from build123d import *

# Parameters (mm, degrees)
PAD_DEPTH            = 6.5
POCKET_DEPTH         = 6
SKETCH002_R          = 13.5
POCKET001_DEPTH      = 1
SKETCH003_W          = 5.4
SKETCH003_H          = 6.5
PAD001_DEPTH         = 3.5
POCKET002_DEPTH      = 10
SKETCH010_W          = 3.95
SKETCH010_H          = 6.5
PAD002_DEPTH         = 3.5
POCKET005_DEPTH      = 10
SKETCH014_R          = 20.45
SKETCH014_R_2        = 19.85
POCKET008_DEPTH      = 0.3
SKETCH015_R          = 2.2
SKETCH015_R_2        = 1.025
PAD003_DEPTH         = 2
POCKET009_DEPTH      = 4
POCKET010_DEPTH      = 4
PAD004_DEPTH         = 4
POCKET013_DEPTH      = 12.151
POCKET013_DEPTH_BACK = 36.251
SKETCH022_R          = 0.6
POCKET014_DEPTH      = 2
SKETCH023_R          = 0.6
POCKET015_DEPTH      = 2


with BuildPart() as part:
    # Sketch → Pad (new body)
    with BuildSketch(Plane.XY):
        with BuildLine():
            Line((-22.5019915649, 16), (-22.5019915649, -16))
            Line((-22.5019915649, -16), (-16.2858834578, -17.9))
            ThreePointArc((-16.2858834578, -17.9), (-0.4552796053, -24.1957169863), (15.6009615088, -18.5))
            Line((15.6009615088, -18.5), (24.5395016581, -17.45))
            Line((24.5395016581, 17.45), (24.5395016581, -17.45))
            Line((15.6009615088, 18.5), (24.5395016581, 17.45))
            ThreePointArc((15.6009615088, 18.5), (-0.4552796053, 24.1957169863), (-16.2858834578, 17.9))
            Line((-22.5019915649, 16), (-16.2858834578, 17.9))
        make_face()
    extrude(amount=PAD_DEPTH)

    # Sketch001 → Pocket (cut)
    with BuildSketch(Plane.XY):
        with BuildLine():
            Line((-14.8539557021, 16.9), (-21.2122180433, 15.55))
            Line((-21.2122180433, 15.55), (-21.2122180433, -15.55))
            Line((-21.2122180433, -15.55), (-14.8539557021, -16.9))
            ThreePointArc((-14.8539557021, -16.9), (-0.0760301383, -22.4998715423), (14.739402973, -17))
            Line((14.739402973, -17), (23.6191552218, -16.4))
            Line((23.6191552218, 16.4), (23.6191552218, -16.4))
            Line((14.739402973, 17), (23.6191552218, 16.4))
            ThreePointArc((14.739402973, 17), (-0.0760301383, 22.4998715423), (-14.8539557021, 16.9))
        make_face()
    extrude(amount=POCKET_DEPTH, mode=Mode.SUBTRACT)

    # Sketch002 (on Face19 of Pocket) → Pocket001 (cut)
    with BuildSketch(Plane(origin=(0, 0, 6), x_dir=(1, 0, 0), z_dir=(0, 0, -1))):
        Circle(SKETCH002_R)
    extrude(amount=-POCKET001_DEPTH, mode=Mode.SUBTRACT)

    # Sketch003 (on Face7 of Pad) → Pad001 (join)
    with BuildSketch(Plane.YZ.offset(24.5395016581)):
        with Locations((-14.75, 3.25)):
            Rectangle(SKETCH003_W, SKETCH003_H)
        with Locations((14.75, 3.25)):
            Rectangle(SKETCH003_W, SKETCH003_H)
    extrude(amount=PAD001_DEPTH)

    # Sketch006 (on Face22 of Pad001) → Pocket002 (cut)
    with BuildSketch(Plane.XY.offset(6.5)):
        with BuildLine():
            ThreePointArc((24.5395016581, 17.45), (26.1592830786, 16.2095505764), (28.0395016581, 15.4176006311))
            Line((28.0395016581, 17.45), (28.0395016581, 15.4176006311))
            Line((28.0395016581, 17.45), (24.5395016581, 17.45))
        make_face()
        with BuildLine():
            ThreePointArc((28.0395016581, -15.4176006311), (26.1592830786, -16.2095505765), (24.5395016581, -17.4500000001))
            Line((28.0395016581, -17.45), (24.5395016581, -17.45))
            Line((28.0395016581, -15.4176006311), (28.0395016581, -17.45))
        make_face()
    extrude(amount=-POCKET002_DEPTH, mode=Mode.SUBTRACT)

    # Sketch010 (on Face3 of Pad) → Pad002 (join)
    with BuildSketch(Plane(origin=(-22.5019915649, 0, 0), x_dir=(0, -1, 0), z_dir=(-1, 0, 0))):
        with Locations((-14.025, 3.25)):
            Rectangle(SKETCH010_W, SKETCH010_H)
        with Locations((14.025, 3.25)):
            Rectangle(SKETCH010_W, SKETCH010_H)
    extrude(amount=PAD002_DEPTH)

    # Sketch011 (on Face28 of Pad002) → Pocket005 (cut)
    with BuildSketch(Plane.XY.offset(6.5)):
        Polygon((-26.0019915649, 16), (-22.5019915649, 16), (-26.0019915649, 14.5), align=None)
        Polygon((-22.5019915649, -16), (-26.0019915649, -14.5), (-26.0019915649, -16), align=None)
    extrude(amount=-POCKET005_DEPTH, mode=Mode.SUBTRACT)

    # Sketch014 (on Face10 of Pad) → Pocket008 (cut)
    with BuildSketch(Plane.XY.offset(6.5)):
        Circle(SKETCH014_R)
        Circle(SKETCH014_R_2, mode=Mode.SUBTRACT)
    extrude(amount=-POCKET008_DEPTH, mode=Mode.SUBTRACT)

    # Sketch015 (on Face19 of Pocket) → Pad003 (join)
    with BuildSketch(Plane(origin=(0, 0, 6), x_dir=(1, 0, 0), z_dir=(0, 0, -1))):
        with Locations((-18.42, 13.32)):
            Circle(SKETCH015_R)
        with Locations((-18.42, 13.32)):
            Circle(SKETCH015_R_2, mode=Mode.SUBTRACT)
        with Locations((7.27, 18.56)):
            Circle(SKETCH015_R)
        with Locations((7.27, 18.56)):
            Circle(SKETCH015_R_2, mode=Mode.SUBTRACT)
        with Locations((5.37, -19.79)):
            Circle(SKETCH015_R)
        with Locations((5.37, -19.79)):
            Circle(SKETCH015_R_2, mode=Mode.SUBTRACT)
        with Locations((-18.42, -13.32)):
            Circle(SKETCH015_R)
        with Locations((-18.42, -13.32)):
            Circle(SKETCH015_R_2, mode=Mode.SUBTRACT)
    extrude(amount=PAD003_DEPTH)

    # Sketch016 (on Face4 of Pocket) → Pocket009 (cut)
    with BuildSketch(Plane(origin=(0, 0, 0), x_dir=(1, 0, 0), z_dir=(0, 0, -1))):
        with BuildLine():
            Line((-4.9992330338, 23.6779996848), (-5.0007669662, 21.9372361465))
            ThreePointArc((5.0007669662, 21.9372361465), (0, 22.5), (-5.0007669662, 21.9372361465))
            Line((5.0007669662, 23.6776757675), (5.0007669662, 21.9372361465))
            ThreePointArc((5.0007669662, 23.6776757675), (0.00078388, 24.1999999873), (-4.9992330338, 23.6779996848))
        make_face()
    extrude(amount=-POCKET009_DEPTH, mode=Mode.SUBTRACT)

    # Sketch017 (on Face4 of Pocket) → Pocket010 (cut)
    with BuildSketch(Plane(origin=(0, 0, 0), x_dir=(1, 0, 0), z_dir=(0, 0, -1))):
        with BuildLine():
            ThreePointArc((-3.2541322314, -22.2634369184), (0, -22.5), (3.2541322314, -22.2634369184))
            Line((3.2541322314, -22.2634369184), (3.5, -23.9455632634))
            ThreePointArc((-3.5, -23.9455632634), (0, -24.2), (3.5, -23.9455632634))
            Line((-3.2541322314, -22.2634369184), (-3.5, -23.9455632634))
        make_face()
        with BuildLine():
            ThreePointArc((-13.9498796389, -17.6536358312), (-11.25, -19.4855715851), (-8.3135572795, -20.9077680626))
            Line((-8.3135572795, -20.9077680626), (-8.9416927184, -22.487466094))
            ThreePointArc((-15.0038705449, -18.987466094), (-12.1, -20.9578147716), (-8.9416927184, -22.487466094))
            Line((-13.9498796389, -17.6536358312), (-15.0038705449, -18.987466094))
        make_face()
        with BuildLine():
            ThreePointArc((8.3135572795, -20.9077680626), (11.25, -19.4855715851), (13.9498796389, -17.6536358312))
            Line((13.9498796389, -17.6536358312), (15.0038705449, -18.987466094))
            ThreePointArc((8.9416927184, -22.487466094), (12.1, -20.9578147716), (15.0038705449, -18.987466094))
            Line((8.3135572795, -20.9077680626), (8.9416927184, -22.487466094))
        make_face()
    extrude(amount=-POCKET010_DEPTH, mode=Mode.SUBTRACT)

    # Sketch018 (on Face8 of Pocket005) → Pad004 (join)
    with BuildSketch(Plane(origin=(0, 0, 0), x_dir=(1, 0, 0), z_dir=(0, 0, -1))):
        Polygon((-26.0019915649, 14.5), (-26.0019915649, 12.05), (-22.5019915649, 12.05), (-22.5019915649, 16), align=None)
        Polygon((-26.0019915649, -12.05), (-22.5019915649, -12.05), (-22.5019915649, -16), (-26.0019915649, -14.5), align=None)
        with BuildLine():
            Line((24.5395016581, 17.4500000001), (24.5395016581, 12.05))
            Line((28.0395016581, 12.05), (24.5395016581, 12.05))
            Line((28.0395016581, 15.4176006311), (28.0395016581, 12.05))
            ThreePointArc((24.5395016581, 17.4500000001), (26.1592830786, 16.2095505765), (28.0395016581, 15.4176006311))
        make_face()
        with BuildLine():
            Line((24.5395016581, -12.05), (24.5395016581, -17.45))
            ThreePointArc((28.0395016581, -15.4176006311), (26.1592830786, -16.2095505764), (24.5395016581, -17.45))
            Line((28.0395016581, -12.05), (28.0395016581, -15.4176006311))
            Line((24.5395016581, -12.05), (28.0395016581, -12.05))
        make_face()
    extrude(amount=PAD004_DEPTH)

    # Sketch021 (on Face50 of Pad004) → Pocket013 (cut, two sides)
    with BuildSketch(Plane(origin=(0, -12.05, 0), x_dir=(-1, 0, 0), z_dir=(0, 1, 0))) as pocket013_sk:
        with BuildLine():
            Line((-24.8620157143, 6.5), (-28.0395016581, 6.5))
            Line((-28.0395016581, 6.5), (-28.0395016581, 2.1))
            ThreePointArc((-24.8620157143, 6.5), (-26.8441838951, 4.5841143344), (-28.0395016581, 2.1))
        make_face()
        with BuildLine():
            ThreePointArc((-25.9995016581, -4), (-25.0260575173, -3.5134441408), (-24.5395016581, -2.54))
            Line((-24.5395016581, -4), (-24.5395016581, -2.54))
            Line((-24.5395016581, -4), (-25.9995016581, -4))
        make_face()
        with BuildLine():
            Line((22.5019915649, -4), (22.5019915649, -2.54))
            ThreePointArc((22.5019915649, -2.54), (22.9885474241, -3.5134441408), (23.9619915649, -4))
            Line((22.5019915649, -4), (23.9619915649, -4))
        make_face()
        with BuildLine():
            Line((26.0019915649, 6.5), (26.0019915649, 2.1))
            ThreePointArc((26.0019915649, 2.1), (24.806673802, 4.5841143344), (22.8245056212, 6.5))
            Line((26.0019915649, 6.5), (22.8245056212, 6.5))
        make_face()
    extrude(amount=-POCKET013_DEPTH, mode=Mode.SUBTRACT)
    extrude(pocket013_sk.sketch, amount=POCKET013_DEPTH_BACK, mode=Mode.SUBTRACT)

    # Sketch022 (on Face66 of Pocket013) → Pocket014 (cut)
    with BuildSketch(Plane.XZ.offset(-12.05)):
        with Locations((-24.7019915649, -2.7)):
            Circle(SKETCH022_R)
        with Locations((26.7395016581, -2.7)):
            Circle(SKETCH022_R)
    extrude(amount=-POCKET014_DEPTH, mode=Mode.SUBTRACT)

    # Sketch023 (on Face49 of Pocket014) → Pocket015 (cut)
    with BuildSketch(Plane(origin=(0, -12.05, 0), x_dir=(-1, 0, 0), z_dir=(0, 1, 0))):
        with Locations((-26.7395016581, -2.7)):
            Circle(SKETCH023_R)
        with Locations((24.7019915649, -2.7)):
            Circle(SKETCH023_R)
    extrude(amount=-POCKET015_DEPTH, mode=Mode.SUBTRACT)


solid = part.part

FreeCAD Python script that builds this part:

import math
import FreeCAD as App
import Part
import Sketcher
from FreeCAD import Vector
Q = App.Units.Quantity

doc = App.newDocument("Part")
body = doc.addObject("PartDesign::Body", "Body")

sketch1 = body.newObject("Sketcher::SketchObject", "Sketch")
sketch1.AttachmentSupport = (doc.getObject("XY_Plane"), [""])
sketch1.MapMode = "FlatFace"
sketch1.addGeometry([
    Part.LineSegment(Vector(-23, 16, 0), Vector(-23, -16, 0)),
    Part.LineSegment(Vector(-23, -16, 0), Vector(-16, -18, 0)),
    Part.ArcOfCircle(Part.Circle(Vector(0, 0, 0), Vector(0, 0, 1), 24), math.radians(-132), math.radians(-50)),
    Part.LineSegment(Vector(16, -18, 0), Vector(25, -17, 0)),
    Part.LineSegment(Vector(25, -17, 0), Vector(25, 17, 0)),
    Part.LineSegment(Vector(25, 17, 0), Vector(16, 18, 0)),
    Part.ArcOfCircle(Part.Circle(Vector(0, 0, 0), Vector(0, 0, 1), 24), math.radians(50), math.radians(132)),
    Part.LineSegment(Vector(-16, 18, 0), Vector(-23, 16, 0)),
], False)
sketch1.addConstraint([
    Sketcher.Constraint("Coincident", 0, 2, 1, 1),
    Sketcher.Constraint("Coincident", 1, 2, 2, 1),
    Sketcher.Constraint("Coincident", 2, 2, 3, 1),
    Sketcher.Constraint("Coincident", 3, 2, 4, 1),
    Sketcher.Constraint("Coincident", 4, 2, 5, 1),
    Sketcher.Constraint("Coincident", 5, 2, 6, 1),
    Sketcher.Constraint("Coincident", 6, 2, 7, 1),
    Sketcher.Constraint("Coincident", 7, 2, 0, 1),
    Sketcher.Constraint("Vertical", 0),
    Sketcher.Constraint("Vertical", 4),
    Sketcher.Constraint("Coincident", 2, 3, -1, 1),
    Sketcher.Constraint("Coincident", 6, 3, -1, 1),
    Sketcher.Constraint("Equal", 2, 6),
    Sketcher.Constraint("Vertical", 2, 2, 5, 2),
    Sketcher.Constraint("Vertical", 1, 2, 6, 2),
    Sketcher.Constraint("Equal", 3, 5),
    Sketcher.Constraint("Equal", 1, 7),
    Sketcher.Constraint("Radius", 2, Q("24.2 mm")),
    Sketcher.Constraint("DistanceY", 0, 2, 0, 1, Q("32 mm")),
    Sketcher.Constraint("Distance", 3, Q("9 mm")),
    Sketcher.Constraint("DistanceY", 4, 1, 4, 2, Q("34.9 mm")),
    Sketcher.Constraint("DistanceY", 2, 2, 5, 2, Q("37 mm")),
    Sketcher.Constraint("Distance", 1, Q("6.5 mm")),
    Sketcher.Constraint("DistanceY", 1, 2, -1, 1, Q("17.9 mm")),
])
pad1 = body.newObject("PartDesign::Pad", "Pad")
pad1.Profile = sketch1
pad1.Length = 6.5

sketch2 = body.newObject("Sketcher::SketchObject", "Sketch001")
sketch2.AttachmentSupport = (doc.getObject("XY_Plane"), [""])
sketch2.MapMode = "FlatFace"
sketch2.addGeometry([
    Part.LineSegment(Vector(-15, 17, 0), Vector(-21, 16, 0)),
    Part.LineSegment(Vector(-21, 16, 0), Vector(-21, -16, 0)),
    Part.LineSegment(Vector(-21, -16, 0), Vector(-15, -17, 0)),
    Part.ArcOfCircle(Part.Circle(Vector(0, 0, 0), Vector(0, 0, 1), 22), math.radians(-131), math.radians(-49)),
    Part.LineSegment(Vector(15, -17, 0), Vector(24, -16, 0)),
    Part.LineSegment(Vector(24, -16, 0), Vector(24, 16, 0)),
    Part.LineSegment(Vector(24, 16, 0), Vector(15, 17, 0)),
    Part.ArcOfCircle(Part.Circle(Vector(0, 0, 0), Vector(0, 0, 1), 22), math.radians(49), math.radians(131)),
], False)
sketch2.addConstraint([
    Sketcher.Constraint("Coincident", 0, 2, 1, 1),
    Sketcher.Constraint("Coincident", 1, 2, 2, 1),
    Sketcher.Constraint("Coincident", 2, 2, 3, 1),
    Sketcher.Constraint("Coincident", 3, 2, 4, 1),
    Sketcher.Constraint("Coincident", 4, 2, 5, 1),
    Sketcher.Constraint("Coincident", 5, 2, 6, 1),
    Sketcher.Constraint("Coincident", 6, 2, 7, 1),
    Sketcher.Constraint("Coincident", 7, 2, 0, 1),
    Sketcher.Constraint("Vertical", 1),
    Sketcher.Constraint("Vertical", 5),
    Sketcher.Constraint("Coincident", 3, 3, -1, 1),
    Sketcher.Constraint("Coincident", 7, 3, -1, 1),
    Sketcher.Constraint("Equal", 3, 7),
    Sketcher.Constraint("Vertical", 3, 2, 6, 2),
    Sketcher.Constraint("Vertical", 2, 2, 7, 2),
    Sketcher.Constraint("Equal", 0, 2),
    Sketcher.Constraint("Equal", 4, 6),
    Sketcher.Constraint("Radius", 3, Q("22.5 mm")),
    Sketcher.Constraint("DistanceY", 1, 2, 1, 1, Q("31.1 mm")),
    Sketcher.Constraint("DistanceY", 5, 1, 5, 2, Q("32.8 mm")),
    Sketcher.Constraint("DistanceY", 3, 2, -1, 1, Q("17 mm")),
    Sketcher.Constraint("Distance", 0, Q("6.5 mm")),
    Sketcher.Constraint("Distance", 4, Q("8.9 mm")),
    Sketcher.Constraint("DistanceY", 2, 2, -1, 1, Q("16.9 mm")),
])
pocket1 = body.newObject("PartDesign::Pocket", "Pocket")
pocket1.Profile = sketch2
pocket1.Length = 6
pocket1.Reversed = True

sketch3 = body.newObject("Sketcher::SketchObject", "Sketch002")
sketch3.AttachmentSupport = (doc.getObject("XY_Plane"), [""])
sketch3.MapMode = "FlatFace"
sketch3.AttachmentOffset = App.Placement(Vector(0, 0, 6), App.Rotation())
sketch3.addGeometry(Part.Circle(Vector(0, 0, 0), Vector(0, 0, 1), 14), False)
sketch3.addConstraint([
    Sketcher.Constraint("Coincident", 0, 3, -1, 1),
    Sketcher.Constraint("Diameter", 0, Q("27 mm")),
])
pocket2 = body.newObject("PartDesign::Pocket", "Pocket001")
pocket2.Profile = sketch3
pocket2.Length = 1
pocket2.Reversed = True

sketch4 = body.newObject("Sketcher::SketchObject", "Sketch003")
sketch4.AttachmentSupport = (doc.getObject("YZ_Plane"), [""])
sketch4.MapMode = "FlatFace"
sketch4.AttachmentOffset = App.Placement(Vector(0, 0, 24.539502), App.Rotation())
sketch4.addGeometry([
    Part.LineSegment(Vector(-17, 6, 0), Vector(-17, 0, 0)),
    Part.LineSegment(Vector(-17, 0, 0), Vector(-12, 0, 0)),
    Part.LineSegment(Vector(-12, 0, 0), Vector(-12, 6, 0)),
    Part.LineSegment(Vector(-12, 6, 0), Vector(-17, 6, 0)),
    Part.LineSegment(Vector(12, 6, 0), Vector(12, 0, 0)),
    Part.LineSegment(Vector(12, 0, 0), Vector(17, 0, 0)),
    Part.LineSegment(Vector(17, 0, 0), Vector(17, 6, 0)),
    Part.LineSegment(Vector(17, 6, 0), Vector(12, 6, 0)),
], False)
sketch4.addConstraint([
    Sketcher.Constraint("Coincident", 0, 2, 1, 1),
    Sketcher.Constraint("Coincident", 1, 2, 2, 1),
    Sketcher.Constraint("Coincident", 2, 2, 3, 1),
    Sketcher.Constraint("Coincident", 3, 2, 0, 1),
    Sketcher.Constraint("Coincident", 4, 2, 5, 1),
    Sketcher.Constraint("Coincident", 5, 2, 6, 1),
    Sketcher.Constraint("Coincident", 6, 2, 7, 1),
    Sketcher.Constraint("Coincident", 7, 2, 4, 1),
    Sketcher.Constraint("Vertical", 0),
    Sketcher.Constraint("Horizontal", 1),
    Sketcher.Constraint("Vertical", 2),
    Sketcher.Constraint("Horizontal", 3),
    Sketcher.Constraint("Vertical", 4),
    Sketcher.Constraint("Horizontal", 5),
    Sketcher.Constraint("Vertical", 6),
    Sketcher.Constraint("Horizontal", 7),
    Sketcher.Constraint("Symmetric", 1, 2, 4, 2, -1, 1),
    Sketcher.Constraint("Symmetric", 0, 2, 5, 2, -2),
    Sketcher.Constraint("Horizontal", 3, 2, 6, 2),
    Sketcher.Constraint("DistanceX", 1, 1, 1, 2, Q("5.4 mm")),
    Sketcher.Constraint("DistanceY", 0, 2, 0, 1, Q("6.5 mm")),
    Sketcher.Constraint("DistanceX", 1, 2, 4, 2, Q("24.1 mm")),
])
pad2 = body.newObject("PartDesign::Pad", "Pad001")
pad2.Profile = sketch4
pad2.Length = 3.5

sketch5 = body.newObject("Sketcher::SketchObject", "Sketch004")
sketch5.AttachmentSupport = (doc.getObject("XY_Plane"), [""])
sketch5.MapMode = "FlatFace"
sketch5.AttachmentOffset = App.Placement(Vector(0, 0, 6.5), App.Rotation())
sketch5.addGeometry([
    Part.ArcOfCircle(Part.Circle(Vector(30.2, 23.1, 0), Vector(0, 0, 1), 8), math.radians(-135), math.radians(-106)),
    Part.LineSegment(Vector(28, 15.4, 0), Vector(28, 17.4, 0)),
    Part.LineSegment(Vector(28, 17.4, 0), Vector(24.5, 17.4, 0)),
    Part.ArcOfCircle(Part.Circle(Vector(30.2, -23.2, 0), Vector(0, 0, 1), 8), math.radians(106), math.radians(135)),
    Part.LineSegment(Vector(24.5, -17.4, 0), Vector(28, -17.4, 0)),
    Part.LineSegment(Vector(28, -17.4, 0), Vector(28, -15.4, 0)),
], False)
sketch5.addConstraint([
    Sketcher.Constraint("Coincident", 0, 2, 1, 1),
    Sketcher.Constraint("Coincident", 1, 2, 2, 1),
    Sketcher.Constraint("Coincident", 2, 2, 0, 1),
    Sketcher.Constraint("Coincident", 3, 2, 4, 1),
    Sketcher.Constraint("Coincident", 4, 2, 5, 1),
    Sketcher.Constraint("Coincident", 5, 2, 3, 1),
    Sketcher.Constraint("Vertical", 1),
    Sketcher.Constraint("Horizontal", 2),
    Sketcher.Constraint("Horizontal", 4),
    Sketcher.Constraint("Vertical", 5),
    Sketcher.Constraint("Equal", 0, 3),
    Sketcher.Constraint("Symmetric", 0, 3, 3, 3, -1),
    Sketcher.Constraint("Symmetric", 1, 2, 4, 2, -1),
    Sketcher.Constraint("DistanceX", 2, 2, 2, 1, Q("3.5 mm")),
    Sketcher.Constraint("DistanceY", 3, 3, 0, 3, Q("46.3 mm")),
    Sketcher.Constraint("DistanceY", 1, 2, 0, 3, Q("5.7 mm")),
    Sketcher.Constraint("Radius", 0, Q("8.02574 mm")),
    Sketcher.Constraint("DistanceX", -1, 1, 0, 3, Q("30.189502 mm")),
])
pocket3 = body.newObject("PartDesign::Pocket", "Pocket002")
pocket3.Profile = sketch5
pocket3.Length = 10

sketch6 = body.newObject("Sketcher::SketchObject", "Sketch005")
sketch6.AttachmentSupport = (doc.getObject("YZ_Plane"), [""])
sketch6.MapMode = "FlatFace"
sketch6.AttachmentOffset = App.Placement(Vector(0, 0, -22.501992), App.Rotation())
sketch6.addGeometry([
    Part.LineSegment(Vector(16, 6.5, 0), Vector(16, 0, 0)),
    Part.LineSegment(Vector(16, 0, 0), Vector(12.1, 0, 0)),
    Part.LineSegment(Vector(12.1, 0, 0), Vector(12.1, 6.5, 0)),
    Part.LineSegment(Vector(12.1, 6.5, 0), Vector(16, 6.5, 0)),
    Part.LineSegment(Vector(-12.1, 6.5, 0), Vector(-12.1, 0, 0)),
    Part.LineSegment(Vector(-12.1, 0, 0), Vector(-16, 0, 0)),
    Part.LineSegment(Vector(-16, 0, 0), Vector(-16, 6.5, 0)),
    Part.LineSegment(Vector(-16, 6.5, 0), Vector(-12.1, 6.5, 0)),
], False)
sketch6.addConstraint([
    Sketcher.Constraint("Coincident", 0, 2, 1, 1),
    Sketcher.Constraint("Coincident", 1, 2, 2, 1),
    Sketcher.Constraint("Coincident", 2, 2, 3, 1),
    Sketcher.Constraint("Coincident", 3, 2, 0, 1),
    Sketcher.Constraint("Coincident", 4, 2, 5, 1),
    Sketcher.Constraint("Coincident", 5, 2, 6, 1),
    Sketcher.Constraint("Coincident", 6, 2, 7, 1),
    Sketcher.Constraint("Coincident", 7, 2, 4, 1),
    Sketcher.Constraint("Vertical", 0),
    Sketcher.Constraint("Horizontal", 1),
    Sketcher.Constraint("Vertical", 2),
    Sketcher.Constraint("Horizontal", 3),
    Sketcher.Constraint("Vertical", 4),
    Sketcher.Constraint("Horizontal", 5),
    Sketcher.Constraint("Vertical", 6),
    Sketcher.Constraint("Horizontal", 7),
    Sketcher.Constraint("Symmetric", 1, 2, 4, 2, -1, 1),
    Sketcher.Constraint("Symmetric", 0, 2, 5, 2, -2),
    Sketcher.Constraint("Horizontal", 3, 2, 6, 2),
    Sketcher.Constraint("DistanceY", 0, 2, 0, 1, Q("6.5 mm")),
    Sketcher.Constraint("DistanceX", -1, 1, 0, 2, Q("16 mm")),
    Sketcher.Constraint("DistanceX", 1, 2, 1, 1, Q("3.95 mm")),
])
pad3 = body.newObject("PartDesign::Pad", "Pad002")
pad3.Profile = sketch6
pad3.Length = 3.5
pad3.Reversed = True

sketch7 = body.newObject("Sketcher::SketchObject", "Sketch006")
sketch7.AttachmentSupport = (doc.getObject("XY_Plane"), [""])
sketch7.MapMode = "FlatFace"
sketch7.AttachmentOffset = App.Placement(Vector(0, 0, 6.5), App.Rotation())
sketch7.addGeometry([
    Part.LineSegment(Vector(-22.5, 16, 0), Vector(-26, 16, 0)),
    Part.LineSegment(Vector(-26, 16, 0), Vector(-26, 14.5, 0)),
    Part.LineSegment(Vector(-26, 14.5, 0), Vector(-22.5, 16, 0)),
    Part.LineSegment(Vector(-22.5, -16, 0), Vector(-26, -14.5, 0)),
    Part.LineSegment(Vector(-26, -14.5, 0), Vector(-26, -16, 0)),
    Part.LineSegment(Vector(-26, -16, 0), Vector(-22.5, -16, 0)),
], False)
sketch7.addConstraint([
    Sketcher.Constraint("Coincident", 0, 2, 1, 1),
    Sketcher.Constraint("Coincident", 1, 2, 2, 1),
    Sketcher.Constraint("Coincident", 2, 2, 0, 1),
    Sketcher.Constraint("Coincident", 3, 2, 4, 1),
    Sketcher.Constraint("Coincident", 4, 2, 5, 1),
    Sketcher.Constraint("Coincident", 5, 2, 3, 1),
    Sketcher.Constraint("Horizontal", 0),
    Sketcher.Constraint("Vertical", 1),
    Sketcher.Constraint("Vertical", 4),
    Sketcher.Constraint("Horizontal", 5),
    Sketcher.Constraint("Symmetric", 1, 2, 3, 2, -1),
    Sketcher.Constraint("Symmetric", 2, 2, 5, 2, -1),
    Sketcher.Constraint("DistanceX", 0, 2, 0, 1, Q("3.5 mm")),
    Sketcher.Constraint("DistanceY", 1, 2, 1, 1, Q("1.5 mm")),
    Sketcher.Constraint("DistanceY", -1, 1, 0, 2, Q("16 mm")),
    Sketcher.Constraint("DistanceX", 0, 2, -1, 1, Q("26.001992 mm")),
])
pocket4 = body.newObject("PartDesign::Pocket", "Pocket003")
pocket4.Profile = sketch7
pocket4.Length = 10

sketch8 = body.newObject("Sketcher::SketchObject", "Sketch007")
sketch8.AttachmentSupport = (doc.getObject("XY_Plane"), [""])
sketch8.MapMode = "FlatFace"
sketch8.AttachmentOffset = App.Placement(Vector(0, 0, 6.5), App.Rotation())
sketch8.addGeometry([
    Part.Circle(Vector(0, 0, 0), Vector(0, 0, 1), 20),
    Part.Circle(Vector(0, 0, 0), Vector(0, 0, 1), 20),
], False)
sketch8.addConstraint([
    Sketcher.Constraint("Coincident", 0, 3, -1, 1),
    Sketcher.Constraint("Coincident", 1, 3, -1, 1),
    Sketcher.Constraint("Diameter", 0, Q("40.9 mm")),
    Sketcher.Constraint("Diameter", 1, Q("39.7 mm")),
])
pocket5 = body.newObject("PartDesign::Pocket", "Pocket004")
pocket5.Profile = sketch8
pocket5.Length = 0.3

sketch9 = body.newObject("Sketcher::SketchObject", "Sketch008")
sketch9.AttachmentSupport = (doc.getObject("XY_Plane"), [""])
sketch9.MapMode = "FlatFace"
sketch9.AttachmentOffset = App.Placement(Vector(0, 0, 6), App.Rotation())
sketch9.addGeometry([
    Part.Circle(Vector(-18.4, -13.3, 0), Vector(0, 0, 1), 2.2),
    Part.Circle(Vector(-18.4, -13.3, 0), Vector(0, 0, 1), 1),
    Part.Circle(Vector(7.3, -18.6, 0), Vector(0, 0, 1), 2.2),
    Part.Circle(Vector(7.3, -18.6, 0), Vector(0, 0, 1), 1),
    Part.Circle(Vector(5.4, 19.8, 0), Vector(0, 0, 1), 2.2),
    Part.Circle(Vector(5.4, 19.8, 0), Vector(0, 0, 1), 1),
    Part.Circle(Vector(-18.4, 13.3, 0), Vector(0, 0, 1), 2.2),
    Part.Circle(Vector(-18.4, 13.3, 0), Vector(0, 0, 1), 1),
], False)
sketch9.addConstraint([
    Sketcher.Constraint("Coincident", 1, 3, 0, 3),
    Sketcher.Constraint("Coincident", 3, 3, 2, 3),
    Sketcher.Constraint("Coincident", 5, 3, 4, 3),
    Sketcher.Constraint("Coincident", 7, 3, 6, 3),
    Sketcher.Constraint("Equal", 0, 2),
    Sketcher.Constraint("Equal", 1, 3),
    Sketcher.Constraint("Equal", 2, 4),
    Sketcher.Constraint("Equal", 3, 5),
    Sketcher.Constraint("Equal", 4, 6),
    Sketcher.Constraint("Equal", 5, 7),
    Sketcher.Constraint("Symmetric", 0, 3, 6, 3, -1),
    Sketcher.Constraint("Diameter", 0, Q("4.4 mm")),
    Sketcher.Constraint("Diameter", 1, Q("2.05 mm")),
    Sketcher.Constraint("DistanceX", 4, 3, 2, 3, Q("1.9 mm")),
    Sketcher.Constraint("DistanceX", 0, 3, -1, 1, Q("18.42 mm")),
    Sketcher.Constraint("DistanceY", 0, 3, -1, 1, Q("13.32 mm")),
    Sketcher.Constraint("DistanceX", -1, 1, 2, 3, Q("7.27 mm")),
    Sketcher.Constraint("DistanceY", 2, 3, -1, 1, Q("18.56 mm")),
    Sketcher.Constraint("DistanceY", -1, 1, 4, 3, Q("19.79 mm")),
])
pad4 = body.newObject("PartDesign::Pad", "Pad003")
pad4.Profile = sketch9
pad4.Length = 2
pad4.Reversed = True

sketch10 = body.newObject("Sketcher::SketchObject", "Sketch009")
sketch10.AttachmentSupport = (doc.getObject("XY_Plane"), [""])
sketch10.MapMode = "FlatFace"
sketch10.addGeometry([
    Part.LineSegment(Vector(-5, -23.7, 0), Vector(-5, -21.9, 0)),
    Part.ArcOfCircle(Part.Circle(Vector(0, 0, 0), Vector(0, 0, 1), 22.5), math.radians(-103), math.radians(-77)),
    Part.LineSegment(Vector(5, -21.9, 0), Vector(5, -23.7, 0)),
    Part.ArcOfCircle(Part.Circle(Vector(0, 0, 0), Vector(0, 0, 1), 24.2), math.radians(-102), math.radians(-78)),
], False)
sketch10.addConstraint([
    Sketcher.Constraint("Coincident", 0, 2, 1, 1),
    Sketcher.Constraint("Coincident", 1, 2, 2, 1),
    Sketcher.Constraint("Coincident", 2, 2, 3, 2),
    Sketcher.Constraint("Coincident", 3, 1, 0, 1),
    Sketcher.Constraint("Vertical", 2),
    Sketcher.Constraint("Coincident", 1, 3, -1, 1),
    Sketcher.Constraint("Coincident", 3, 3, -1, 1),
    Sketcher.Constraint("Horizontal", 0, 2, 1, 2),
    Sketcher.Constraint("Radius", 1, Q("22.5 mm")),
    Sketcher.Constraint("Radius", 3, Q("24.2 mm")),
    Sketcher.Constraint("DistanceX", 3, 1, 2, 2, Q("10 mm")),
    Sketcher.Constraint("DistanceY", 3, 1, -1, 1, Q("23.678 mm")),
])
pocket6 = body.newObject("PartDesign::Pocket", "Pocket005")
pocket6.Profile = sketch10
pocket6.Length = 4
pocket6.Reversed = True

sketch11 = body.newObject("Sketcher::SketchObject", "Sketch010")
sketch11.AttachmentSupport = (doc.getObject("XY_Plane"), [""])
sketch11.MapMode = "FlatFace"
sketch11.addGeometry([
    Part.ArcOfCircle(Part.Circle(Vector(0, 0, 0), Vector(0, 0, 1), 22.5), math.radians(81.68), math.radians(98.32)),
    Part.LineSegment(Vector(-3.3, 22.3, 0), Vector(-3.5, 23.9, 0)),
    Part.ArcOfCircle(Part.Circle(Vector(0, 0, 0), Vector(0, 0, 1), 24.2), math.radians(81.68), math.radians(98.32)),
    Part.LineSegment(Vector(3.5, 23.9, 0), Vector(3.3, 22.3, 0)),
    Part.ArcOfCircle(Part.Circle(Vector(0, 0, 0), Vector(0, 0, 1), 22.5), math.radians(111.68), math.radians(128.32)),
    Part.LineSegment(Vector(-13.9, 17.7, 0), Vector(-15, 19, 0)),
    Part.ArcOfCircle(Part.Circle(Vector(0, 0, 0), Vector(0, 0, 1), 24.2), math.radians(111.68), math.radians(128.32)),
    Part.LineSegment(Vector(-8.9, 22.5, 0), Vector(-8.3, 20.9, 0)),
    Part.ArcOfCircle(Part.Circle(Vector(0, 0, 0), Vector(0, 0, 1), 22.5), math.radians(51.68), math.radians(68.32)),
    Part.LineSegment(Vector(8.3, 20.9, 0), Vector(8.9, 22.5, 0)),
    Part.ArcOfCircle(Part.Circle(Vector(0, 0, 0), Vector(0, 0, 1), 24.2), math.radians(51.68), math.radians(68.32)),
    Part.LineSegment(Vector(15, 19, 0), Vector(13.9, 17.7, 0)),
], False)
sketch11.addConstraint([
    Sketcher.Constraint("Coincident", 0, 2, 1, 1),
    Sketcher.Constraint("Coincident", 1, 2, 2, 2),
    Sketcher.Constraint("Coincident", 2, 1, 3, 1),
    Sketcher.Constraint("Coincident", 3, 2, 0, 1),
    Sketcher.Constraint("Coincident", 4, 2, 5, 1),
    Sketcher.Constraint("Coincident", 5, 2, 6, 2),
    Sketcher.Constraint("Coincident", 6, 1, 7, 1),
    Sketcher.Constraint("Coincident", 7, 2, 4, 1),
    Sketcher.Constraint("Coincident", 8, 2, 9, 1),
    Sketcher.Constraint("Coincident", 9, 2, 10, 2),
    Sketcher.Constraint("Coincident", 10, 1, 11, 1),
    Sketcher.Constraint("Coincident", 11, 2, 8, 1),
    Sketcher.Constraint("Coincident", 0, 3, -1, 1),
    Sketcher.Constraint("Coincident", 2, 3, -1, 1),
    Sketcher.Constraint("Coincident", 4, 3, -1, 1),
    Sketcher.Constraint("Coincident", 6, 3, -1, 1),
    Sketcher.Constraint("Coincident", 8, 3, -1, 1),
    Sketcher.Constraint("Coincident", 10, 3, -1, 1),
    Sketcher.Constraint("Equal", 0, 4),
    Sketcher.Constraint("Equal", 2, 6),
    Sketcher.Constraint("Equal", 4, 8),
    Sketcher.Constraint("Equal", 6, 10),
    Sketcher.Constraint("Horizontal", 1, 2, 2, 1),
    Sketcher.Constraint("Horizontal", 0, 2, 3, 2),
    Sketcher.Constraint("Horizontal", 7, 2, 8, 2),
    Sketcher.Constraint("Horizontal", 6, 1, 9, 2),
    Sketcher.Constraint("Horizontal", 5, 2, 10, 1),
    Sketcher.Constraint("Horizontal", 4, 2, 11, 2),
    Sketcher.Constraint("Radius", 0, Q("22.5 mm")),
    Sketcher.Constraint("Radius", 2, Q("24.2 mm")),
    Sketcher.Constraint("DistanceX", 1, 2, 2, 1, Q("7 mm")),
    Sketcher.Constraint("DistanceY", 5, 2, 6, 1, Q("3.5 mm")),
    Sketcher.Constraint("DistanceY", 4, 2, 0, 2, Q("4.609801 mm")),
    Sketcher.Constraint("DistanceY", 7, 2, 6, 1, Q("1.579698 mm")),
    Sketcher.Constraint("DistanceX", 4, 2, -1, 1, Q("13.94988 mm")),
    Sketcher.Constraint("DistanceX", 5, 2, -1, 1, Q("15.003871 mm")),
])
pocket7 = body.newObject("PartDesign::Pocket", "Pocket006")
pocket7.Profile = sketch11
pocket7.Length = 4
pocket7.Reversed = True

sketch12 = body.newObject("Sketcher::SketchObject", "Sketch011")
sketch12.AttachmentSupport = (doc.getObject("XY_Plane"), [""])
sketch12.MapMode = "FlatFace"
sketch12.addGeometry([
    Part.LineSegment(Vector(-26, -14.5, 0), Vector(-26, -12.1, 0)),
    Part.LineSegment(Vector(-26, -12.1, 0), Vector(-22.5, -12.1, 0)),
    Part.LineSegment(Vector(-22.5, -12.1, 0), Vector(-22.5, -16, 0)),
    Part.LineSegment(Vector(-22.5, -16, 0), Vector(-26, -14.5, 0)),
    Part.LineSegment(Vector(-22.5, 12.1, 0), Vector(-26, 12.1, 0)),
    Part.LineSegment(Vector(-26, 12.1, 0), Vector(-26, 14.5, 0)),
    Part.LineSegment(Vector(-26, 14.5, 0), Vector(-22.5, 16, 0)),
    Part.LineSegment(Vector(-22.5, 16, 0), Vector(-22.5, 12.1, 0)),
    Part.LineSegment(Vector(24.5, -17.4, 0), Vector(24.5, -12.1, 0)),
    Part.LineSegment(Vector(24.5, -12.1, 0), Vector(28, -12.1, 0)),
    Part.LineSegment(Vector(28, -12.1, 0), Vector(28, -15.4, 0)),
    Part.ArcOfCircle(Part.Circle(Vector(30.2, -23.2, 0), Vector(0, 0, 1), 8), math.radians(106), math.radians(135)),
    Part.LineSegment(Vector(24.5, 12.1, 0), Vector(24.5, 17.4, 0)),
    Part.ArcOfCircle(Part.Circle(Vector(30.2, 23.1, 0), Vector(0, 0, 1), 8), math.radians(-135), math.radians(-106)),
    Part.LineSegment(Vector(28, 15.4, 0), Vector(28, 12.1, 0)),
    Part.LineSegment(Vector(28, 12.1, 0), Vector(24.5, 12.1, 0)),
], False)
sketch12.addConstraint([
    Sketcher.Constraint("Coincident", 0, 2, 1, 1),
    Sketcher.Constraint("Coincident", 1, 2, 2, 1),
    Sketcher.Constraint("Coincident", 2, 2, 3, 1),
    Sketcher.Constraint("Coincident", 3, 2, 0, 1),
    Sketcher.Constraint("Coincident", 4, 2, 5, 1),
    Sketcher.Constraint("Coincident", 5, 2, 6, 1),
    Sketcher.Constraint("Coincident", 6, 2, 7, 1),
    Sketcher.Constraint("Coincident", 7, 2, 4, 1),
    Sketcher.Constraint("Coincident", 8, 2, 9, 1),
    Sketcher.Constraint("Coincident", 9, 2, 10, 1),
    Sketcher.Constraint("Coincident", 10, 2, 11, 1),
    Sketcher.Constraint("Coincident", 11, 2, 8, 1),
    Sketcher.Constraint("Coincident", 12, 2, 13, 1),
    Sketcher.Constraint("Coincident", 13, 2, 14, 1),
    Sketcher.Constraint("Coincident", 14, 2, 15, 1),
    Sketcher.Constraint("Coincident", 15, 2, 12, 1),
    Sketcher.Constraint("Vertical", 0),
    Sketcher.Constraint("Horizontal", 1),
    Sketcher.Constraint("Vertical", 2),
    Sketcher.Constraint("Horizontal", 4),
    Sketcher.Constraint("Vertical", 5),
    Sketcher.Constraint("Vertical", 7),
    Sketcher.Constraint("Vertical", 8),
    Sketcher.Constraint("Horizontal", 9),
    Sketcher.Constraint("Vertical", 10),
    Sketcher.Constraint("Vertical", 12),
    Sketcher.Constraint("Vertical", 14),
    Sketcher.Constraint("Horizontal", 15),
    Sketcher.Constraint("Equal", 11, 13),
    Sketcher.Constraint("Symmetric", 11, 3, 13, 3, -1),
    Sketcher.Constraint("Symmetric", 0, 2, 4, 2, -1),
    Sketcher.Constraint("Symmetric", 2, 2, 6, 2, -1),
    Sketcher.Constraint("Symmetric", 9, 2, 14, 2, -1),
    Sketcher.Constraint("Horizontal", 1, 2, 8, 2),
    Sketcher.Constraint("Vertical", 11, 2, 12, 2),
    Sketcher.Constraint("Equal", 4, 9),
    Sketcher.Constraint("Equal", 0, 5),
    Sketcher.Constraint("DistanceX", 1, 1, 1, 2, Q("3.5 mm")),
    Sketcher.Constraint("DistanceY", 8, 1, 8, 2, Q("5.4 mm")),
    Sketcher.Constraint("DistanceY", 2, 2, -1, 1, Q("16 mm")),
    Sketcher.Constraint("DistanceY", 3, 2, 5, 2, Q("29 mm")),
    Sketcher.Constraint("DistanceY", 0, 1, 0, 2, Q("2.45 mm")),
    Sketcher.Constraint("DistanceY", 11, 3, 13, 3, Q("46.3 mm")),
    Sketcher.Constraint("Radius", 11, Q("8.02574 mm")),
    Sketcher.Constraint("DistanceX", -1, 1, 11, 3, Q("30.189502 mm")),
    Sketcher.Constraint("DistanceX", 0, 2, -1, 1, Q("26.001992 mm")),
])
pad5 = body.newObject("PartDesign::Pad", "Pad004")
pad5.Profile = sketch12
pad5.Length = 4
pad5.Reversed = True

sketch13 = body.newObject("Sketcher::SketchObject", "Sketch012")
sketch13.AttachmentSupport = (doc.getObject("XZ_Plane"), [""])
sketch13.MapMode = "FlatFace"
sketch13.AttachmentOffset = App.Placement(Vector(0, 0, 12.05), App.Rotation())
sketch13.addGeometry([
    Part.LineSegment(Vector(24.9, 6.5, 0), Vector(28, 6.5, 0)),
    Part.LineSegment(Vector(28, 6.5, 0), Vector(28, 2.1, 0)),
    Part.ArcOfCircle(Part.Circle(Vector(20.5, 0, 0), Vector(0, 0, 1), 7.8), math.radians(16), math.radians(56)),
    Part.ArcOfCircle(Part.Circle(Vector(26.2, -2.3, 0), Vector(0, 0, 1), 1.7), math.radians(-172), math.radians(-98)),
    Part.LineSegment(Vector(26, -4, 0), Vector(24.5, -4, 0)),
    Part.LineSegment(Vector(24.5, -4, 0), Vector(24.5, -2.5, 0)),
    Part.LineSegment(Vector(-22.5, -2.5, 0), Vector(-22.5, -4, 0)),
    Part.LineSegment(Vector(-22.5, -4, 0), Vector(-24, -4, 0)),
    Part.ArcOfCircle(Part.Circle(Vector(-24.2, -2.3, 0), Vector(0, 0, 1), 1.7), math.radians(-82), math.radians(-8)),
    Part.LineSegment(Vector(-26, 2.1, 0), Vector(-26, 6.5, 0)),
    Part.LineSegment(Vector(-26, 6.5, 0), Vector(-22.8, 6.5, 0)),
    Part.ArcOfCircle(Part.Circle(Vector(-18.5, 0, 0), Vector(0, 0, 1), 7.8), math.radians(124), math.radians(164)),
], False)
sketch13.addConstraint([
    Sketcher.Constraint("Coincident", 0, 2, 1, 1),
    Sketcher.Constraint("Coincident", 1, 2, 2, 1),
    Sketcher.Constraint("Coincident", 2, 2, 0, 1),
    Sketcher.Constraint("Coincident", 3, 2, 4, 1),
    Sketcher.Constraint("Coincident", 4, 2, 5, 1),
    Sketcher.Constraint("Coincident", 5, 2, 3, 1),
    Sketcher.Constraint("Coincident", 6, 2, 7, 1),
    Sketcher.Constraint("Coincident", 7, 2, 8, 1),
    Sketcher.Constraint("Coincident", 8, 2, 6, 1),
    Sketcher.Constraint("Coincident", 9, 2, 10, 1),
    Sketcher.Constraint("Coincident", 10, 2, 11, 1),
    Sketcher.Constraint("Coincident", 11, 2, 9, 1),
    Sketcher.Constraint("Horizontal", 0),
    Sketcher.Constraint("Vertical", 1),
    Sketcher.Constraint("Horizontal", 4),
    Sketcher.Constraint("Vertical", 5),
    Sketcher.Constraint("Vertical", 6),
    Sketcher.Constraint("Horizontal", 7),
    Sketcher.Constraint("Vertical", 9),
    Sketcher.Constraint("Horizontal", 10),
    Sketcher.Constraint("Equal", 3, 8),
    Sketcher.Constraint("Equal", 2, 11),
    Sketcher.Constraint("PointOnObject", 2, 3, -1),
    Sketcher.Constraint("PointOnObject", 11, 3, -1),
    Sketcher.Constraint("Horizontal", 3, 3, 8, 3),
    Sketcher.Constraint("Horizontal", 4, 2, 6, 2),
    Sketcher.Constraint("Horizontal", 5, 2, 8, 2),
    Sketcher.Constraint("Horizontal", 2, 2, 9, 2),
    Sketcher.Constraint("Horizontal", 1, 2, 11, 2),
    Sketcher.Constraint("Equal", 7, 5),
    Sketcher.Constraint("Radius", 2, Q("7.83 mm")),
    Sketcher.Constraint("Radius", 3, Q("1.72 mm")),
    Sketcher.Constraint("DistanceY", 1, 2, 1, 1, Q("4.4 mm")),
    Sketcher.Constraint("DistanceY", 3, 2, -1, 1, Q("4 mm")),
    Sketcher.Constraint("DistanceX", 4, 2, 4, 1, Q("1.46 mm")),
    Sketcher.Constraint("DistanceY", -1, 1, 0, 2, Q("6.5 mm")),
    Sketcher.Constraint("DistanceX", 4, 2, 1, 2, Q("3.5 mm")),
    Sketcher.Constraint("DistanceX", 9, 2, 8, 2, Q("3.5 mm")),
    Sketcher.Constraint("DistanceX", -1, 1, 0, 2, Q("28.039502 mm")),
    Sketcher.Constraint("DistanceX", 8, 3, -1, 1, Q("24.204771 mm")),
])
pocket8 = body.newObject("PartDesign::Pocket", "Pocket007")
pocket8.Profile = sketch13
pocket8.Type = "ThroughAll"
pocket8.Midplane = True

sketch14 = body.newObject("Sketcher::SketchObject", "Sketch013")
sketch14.AttachmentSupport = (doc.getObject("XZ_Plane"), [""])
sketch14.MapMode = "FlatFace"
sketch14.AttachmentOffset = App.Placement(Vector(0, 0, -12.05), App.Rotation())
sketch14.addGeometry([
    Part.Circle(Vector(-24.7, -2.7, 0), Vector(0, 0, 1), 0.6),
    Part.Circle(Vector(26.7, -2.7, 0), Vector(0, 0, 1), 0.6),
], False)
sketch14.addConstraint([
    Sketcher.Constraint("Equal", 0, 1),
    Sketcher.Constraint("Horizontal", 0, 3, 1, 3),
    Sketcher.Constraint("Diameter", 0, Q("1.2 mm")),
    Sketcher.Constraint("DistanceY", 0, 3, -1, 1, Q("2.7 mm")),
    Sketcher.Constraint("DistanceX", -1, 1, 1, 3, Q("26.739502 mm")),
    Sketcher.Constraint("DistanceX", 0, 3, -1, 1, Q("24.701992 mm")),
])
pocket9 = body.newObject("PartDesign::Pocket", "Pocket008")
pocket9.Profile = sketch14
pocket9.Length = 2

sketch15 = body.newObject("Sketcher::SketchObject", "Sketch014")
sketch15.AttachmentSupport = (doc.getObject("XZ_Plane"), [""])
sketch15.MapMode = "FlatFace"
sketch15.AttachmentOffset = App.Placement(Vector(0, 0, 12.05), App.Rotation())
sketch15.addGeometry([
    Part.Circle(Vector(26.7, -2.7, 0), Vector(0, 0, 1), 0.6),
    Part.Circle(Vector(-24.7, -2.7, 0), Vector(0, 0, 1), 0.6),
], False)
sketch15.addConstraint([
    Sketcher.Constraint("Equal", 0, 1),
    Sketcher.Constraint("Horizontal", 0, 3, 1, 3),
    Sketcher.Constraint("Diameter", 0, Q("1.2 mm")),
    Sketcher.Constraint("DistanceY", 0, 3, -1, 1, Q("2.7 mm")),
    Sketcher.Constraint("DistanceX", -1, 1, 0, 3, Q("26.739502 mm")),
    Sketcher.Constraint("DistanceX", 1, 3, -1, 1, Q("24.701992 mm")),
])
pocket10 = body.newObject("PartDesign::Pocket", "Pocket009")
pocket10.Profile = sketch15
pocket10.Length = 2
pocket10.Reversed = True

doc.recompute()
